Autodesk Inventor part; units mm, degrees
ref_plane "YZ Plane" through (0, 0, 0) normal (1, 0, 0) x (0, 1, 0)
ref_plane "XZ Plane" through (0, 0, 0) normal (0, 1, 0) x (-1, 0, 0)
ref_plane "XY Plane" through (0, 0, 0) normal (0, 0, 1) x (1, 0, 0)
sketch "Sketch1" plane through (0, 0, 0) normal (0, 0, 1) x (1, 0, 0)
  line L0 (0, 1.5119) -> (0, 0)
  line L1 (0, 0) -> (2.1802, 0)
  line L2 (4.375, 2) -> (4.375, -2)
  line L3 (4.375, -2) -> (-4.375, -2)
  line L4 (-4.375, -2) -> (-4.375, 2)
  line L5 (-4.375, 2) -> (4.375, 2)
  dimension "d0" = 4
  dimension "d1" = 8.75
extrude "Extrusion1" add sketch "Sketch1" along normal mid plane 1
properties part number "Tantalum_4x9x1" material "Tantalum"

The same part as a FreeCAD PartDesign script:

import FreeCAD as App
import Part
import Sketcher
from FreeCAD import Vector

doc = App.newDocument("Part")
body = doc.addObject("PartDesign::Body", "Body")

# Sketch on XY plane
sketch1 = doc.addObject("Sketcher::SketchObject", "Sketch")
body.addObject(sketch1)
sketch1.AttachmentSupport = (doc.XY_Plane, [""])
sketch1.MapMode = "FlatFace"
sketch1.addGeometry([
    Part.LineSegment(Vector(4.4, -2, 0), Vector(4.4, 2, 0)),
    Part.LineSegment(Vector(4.4, 2, 0), Vector(-4.4, 2, 0)),
    Part.LineSegment(Vector(-4.4, 2, 0), Vector(-4.4, -2, 0)),
    Part.LineSegment(Vector(-4.4, -2, 0), Vector(4.4, -2, 0)),
], False)
sketch1.addConstraint([
    Sketcher.Constraint("Coincident", 0, 2, 1, 1),
    Sketcher.Constraint("Coincident", 1, 2, 2, 1),
    Sketcher.Constraint("Coincident", 2, 2, 3, 1),
    Sketcher.Constraint("Coincident", 3, 2, 0, 1),
    Sketcher.Constraint("Vertical", 0),
    Sketcher.Constraint("Horizontal", 1),
    Sketcher.Constraint("Vertical", 2),
    Sketcher.Constraint("Horizontal", 3),
    Sketcher.Constraint("Symmetric", 0, 2, 2, 2, -1, 1),
    Sketcher.Constraint("DistanceY", 0, 1, 0, 2, 4.0),
    Sketcher.Constraint("DistanceX", 1, 2, 1, 1, 8.75),
])
pad1 = doc.addObject("PartDesign::Pad", "Pad")
body.addObject(pad1)
pad1.Profile = sketch1
pad1.Length = 1
pad1.Midplane = True

doc.recompute()
